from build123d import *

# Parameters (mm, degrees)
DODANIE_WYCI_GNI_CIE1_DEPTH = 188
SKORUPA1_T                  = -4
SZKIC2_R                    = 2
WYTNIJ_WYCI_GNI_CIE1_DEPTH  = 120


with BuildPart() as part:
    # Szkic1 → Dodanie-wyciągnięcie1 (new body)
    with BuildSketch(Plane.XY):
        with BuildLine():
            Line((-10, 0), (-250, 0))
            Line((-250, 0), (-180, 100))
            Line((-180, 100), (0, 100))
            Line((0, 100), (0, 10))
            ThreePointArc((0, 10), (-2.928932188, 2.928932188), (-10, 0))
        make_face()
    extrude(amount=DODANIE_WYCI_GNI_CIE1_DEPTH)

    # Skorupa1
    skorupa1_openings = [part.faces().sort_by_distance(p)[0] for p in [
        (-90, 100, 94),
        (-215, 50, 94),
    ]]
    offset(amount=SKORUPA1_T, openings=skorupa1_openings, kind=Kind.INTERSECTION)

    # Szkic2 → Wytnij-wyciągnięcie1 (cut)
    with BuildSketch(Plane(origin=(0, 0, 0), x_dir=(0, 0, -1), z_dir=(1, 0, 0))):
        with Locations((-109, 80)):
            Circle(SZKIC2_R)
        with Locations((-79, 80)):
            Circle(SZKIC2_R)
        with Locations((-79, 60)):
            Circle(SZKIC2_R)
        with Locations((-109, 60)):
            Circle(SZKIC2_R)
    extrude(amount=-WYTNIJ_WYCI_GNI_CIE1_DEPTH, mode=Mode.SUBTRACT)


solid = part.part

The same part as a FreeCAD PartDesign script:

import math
import FreeCAD as App
import Part
import Sketcher

V = App.Vector


def faces_at(feature, points):
    """Names of the faces that lie closest to the given points."""
    faces = feature.Shape.Faces
    near = lambda p: min(range(len(faces)), key=lambda i: faces[i].distToShape(Part.Vertex(*p))[0])
    return sorted({f"Face{near(p) + 1}" for p in points})

doc = App.newDocument("Part")
body = doc.addObject("PartDesign::Body", "Body")

sketch1 = body.newObject("Sketcher::SketchObject", "Sketch")
sketch1.AttachmentSupport = (doc.getObject("XY_Plane"), [""])
sketch1.MapMode = "FlatFace"
sketch1.addGeometry([
    Part.LineSegment(V(-250, 0, 0), V(-10, 0, 0)),
    Part.ArcOfCircle(Part.Circle(V(-10, 10, 0), V(0, 0, 1), 10), math.radians(-90), math.radians(0)),
    Part.LineSegment(V(0, 10, 0), V(0, 100, 0)),
    Part.LineSegment(V(0, 100, 0), V(-180, 100, 0)),
    Part.LineSegment(V(-180, 100, 0), V(-250, 0, 0)),
], False)
sketch1.addConstraint([
    Sketcher.Constraint("Tangent", 0, 2, 1, 1),
    Sketcher.Constraint("Tangent", 1, 2, 2, 1),
    Sketcher.Constraint("Coincident", 2, 2, 3, 1),
    Sketcher.Constraint("Coincident", 3, 2, 4, 1),
    Sketcher.Constraint("Coincident", 4, 2, 0, 1),
    Sketcher.Constraint("Horizontal", 0),
    Sketcher.Constraint("Vertical", 2),
    Sketcher.Constraint("Horizontal", 3),
    Sketcher.Constraint("PointOnObject", 0, 2, -1),
    Sketcher.Constraint("PointOnObject", 1, 2, -2),
    Sketcher.Constraint("Radius", 1, 10.0),
    Sketcher.Constraint("DistanceX", 0, 1, 0, 2, 240.0),
    Sketcher.Constraint("DistanceX", 3, 2, 3, 1, 180.0),
    Sketcher.Constraint("DistanceY", 2, 1, 2, 2, 90.0),
])
pad1 = body.newObject("PartDesign::Pad", "Pad")
pad1.Profile = sketch1
pad1.Length = 188
doc.recompute()

thickness = body.newObject("PartDesign::Thickness", "Thickness")
thickness.Base = (pad1, faces_at(pad1, [(-90, 100, 94), (-215, 50, 94)]))
thickness.Value = 4
thickness.Reversed = True
thickness.Join = "Intersection"

sketch2 = body.newObject("Sketcher::SketchObject", "Sketch001")
sketch2.AttachmentSupport = (doc.getObject("YZ_Plane"), [""])
sketch2.MapMode = "FlatFace"
sketch2.addGeometry([
    Part.Circle(V(80, 109, 0), V(0, 0, 1), 2),
    Part.Circle(V(80, 79, 0), V(0, 0, 1), 2),
    Part.Circle(V(60, 79, 0), V(0, 0, 1), 2),
    Part.Circle(V(60, 109, 0), V(0, 0, 1), 2),
], False)
sketch2.addConstraint([
    Sketcher.Constraint("Equal", 0, 1),
    Sketcher.Constraint("Equal", 1, 2),
    Sketcher.Constraint("Equal", 2, 3),
    Sketcher.Constraint("Horizontal", 1, 3, 2, 3),
    Sketcher.Constraint("Horizontal", 0, 3, 3, 3),
    Sketcher.Constraint("Vertical", 0, 3, 1, 3),
    Sketcher.Constraint("Vertical", 2, 3, 3, 3),
    Sketcher.Constraint("Diameter", 0, 4.0),
    Sketcher.Constraint("DistanceX", -1, 1, 0, 3, 80.0),
    Sketcher.Constraint("DistanceY", -1, 1, 0, 3, 109.0),
    Sketcher.Constraint("DistanceY", -1, 1, 1, 3, 79.0),
    Sketcher.Constraint("DistanceX", -1, 1, 2, 3, 60.0),
])
pocket1 = body.newObject("PartDesign::Pocket", "Pocket")
pocket1.Profile = sketch2
pocket1.Length = 120

doc.recompute()
